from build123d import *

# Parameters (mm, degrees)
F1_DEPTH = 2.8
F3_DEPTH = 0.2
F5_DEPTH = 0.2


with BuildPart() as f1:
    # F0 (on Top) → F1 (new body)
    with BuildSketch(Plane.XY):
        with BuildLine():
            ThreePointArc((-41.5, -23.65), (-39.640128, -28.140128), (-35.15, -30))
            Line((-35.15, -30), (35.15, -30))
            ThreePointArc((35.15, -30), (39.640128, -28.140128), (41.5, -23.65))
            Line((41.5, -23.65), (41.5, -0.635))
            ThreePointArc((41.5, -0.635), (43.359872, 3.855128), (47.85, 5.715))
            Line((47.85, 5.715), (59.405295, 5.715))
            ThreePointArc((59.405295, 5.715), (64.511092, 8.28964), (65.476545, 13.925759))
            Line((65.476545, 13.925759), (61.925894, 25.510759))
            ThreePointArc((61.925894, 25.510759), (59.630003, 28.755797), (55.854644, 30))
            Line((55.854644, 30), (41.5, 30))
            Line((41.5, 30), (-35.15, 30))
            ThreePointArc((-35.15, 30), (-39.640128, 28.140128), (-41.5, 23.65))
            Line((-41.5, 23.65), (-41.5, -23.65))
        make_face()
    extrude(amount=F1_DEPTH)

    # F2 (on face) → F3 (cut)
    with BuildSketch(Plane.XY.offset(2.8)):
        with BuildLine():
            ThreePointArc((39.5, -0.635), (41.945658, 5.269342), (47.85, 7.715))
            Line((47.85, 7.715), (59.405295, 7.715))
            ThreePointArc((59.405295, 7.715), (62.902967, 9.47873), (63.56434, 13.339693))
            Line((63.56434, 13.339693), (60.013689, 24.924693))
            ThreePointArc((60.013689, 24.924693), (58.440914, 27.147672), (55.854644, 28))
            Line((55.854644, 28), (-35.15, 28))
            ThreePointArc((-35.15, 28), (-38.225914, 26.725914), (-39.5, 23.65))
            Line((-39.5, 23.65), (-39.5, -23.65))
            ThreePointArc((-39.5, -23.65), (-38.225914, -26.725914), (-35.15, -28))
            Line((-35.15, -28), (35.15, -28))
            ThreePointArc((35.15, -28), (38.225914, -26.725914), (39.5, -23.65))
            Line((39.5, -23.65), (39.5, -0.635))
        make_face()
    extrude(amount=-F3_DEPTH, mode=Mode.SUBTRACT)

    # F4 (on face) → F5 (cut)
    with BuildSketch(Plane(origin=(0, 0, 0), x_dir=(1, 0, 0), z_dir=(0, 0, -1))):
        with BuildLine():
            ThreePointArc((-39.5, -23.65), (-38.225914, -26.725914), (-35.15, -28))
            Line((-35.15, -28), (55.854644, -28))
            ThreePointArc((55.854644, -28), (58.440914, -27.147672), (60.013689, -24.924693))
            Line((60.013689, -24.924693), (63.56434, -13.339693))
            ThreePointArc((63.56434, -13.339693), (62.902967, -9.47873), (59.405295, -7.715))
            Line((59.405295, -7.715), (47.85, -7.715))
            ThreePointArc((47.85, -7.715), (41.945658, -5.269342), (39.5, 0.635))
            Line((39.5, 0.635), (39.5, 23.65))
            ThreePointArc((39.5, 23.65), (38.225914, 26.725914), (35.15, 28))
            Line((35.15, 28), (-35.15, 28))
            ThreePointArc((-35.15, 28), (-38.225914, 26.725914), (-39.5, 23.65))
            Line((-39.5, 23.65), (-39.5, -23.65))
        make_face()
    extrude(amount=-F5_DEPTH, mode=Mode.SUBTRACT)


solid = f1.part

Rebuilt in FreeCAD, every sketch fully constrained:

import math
import FreeCAD as App
import Part
import Sketcher
from FreeCAD import Vector

doc = App.newDocument("Part")
params = doc.addObject("Spreadsheet::Sheet", "Params")
for row, (alias, value) in enumerate([
    ("sketch1_radius", "6.35 mm"),
    ("sketch1_width", "70.3 mm"),
    ("sketch1_height", "47.3 mm"),
    ("pad1_length", "2.8 mm"),
    ("sketch2_radius", "8.349999 mm"),
    ("sketch2_radius2", "4.349999 mm"),
    ("sketch2_width", "70.3 mm"),
    ("sketch2_height", "47.3 mm"),
    ("pocket1_length", "0.2 mm"),
    ("sketch3_radius", "4.350002 mm"),
    ("sketch3_radius2", "8.349999 mm"),
    ("sketch3_width", "70.3 mm"),
    ("sketch3_height", "47.3 mm"),
    ("pocket2_length", "0.2 mm"),
], start=1):
    params.set(f"A{row}", alias)
    params.set(f"B{row}", "=" + value)
    params.setAlias(f"B{row}", alias)

body = doc.addObject("PartDesign::Body", "Body")

# Sketch on XY plane
sketch1 = body.newObject("Sketcher::SketchObject", "Sketch")
sketch1.AttachmentSupport = (doc.getObject("XY_Plane"), [""])
sketch1.MapMode = "FlatFace"
sketch1.addGeometry(Part.ArcOfCircle(Part.Circle(Vector(-35.15, -23.65, 0), Vector(0, 0, 1), 6.35), math.radians(-179.999998), math.radians(-90.000002)), False)
sketch1.addGeometry(Part.LineSegment(Vector(-35.15, -30, 0), Vector(35.15, -30, 0)), False)
sketch1.addGeometry(Part.ArcOfCircle(Part.Circle(Vector(35.15, -23.65, 0), Vector(0, 0, 1), 6.35), math.radians(-89.999998), math.radians(-0.000002)), False)
sketch1.addGeometry(Part.LineSegment(Vector(41.5, -23.65, 0), Vector(41.5, -0.635, 0)), False)
sketch1.addGeometry(Part.ArcOfCircle(Part.Circle(Vector(47.85, -0.635, 0), Vector(0, 0, 1), 6.35), math.radians(90.000002), math.radians(179.999998)), False)
sketch1.addGeometry(Part.LineSegment(Vector(47.85, 5.715, 0), Vector(59.405295, 5.715, 0)), False)
sketch1.addGeometry(Part.ArcOfCircle(Part.Circle(Vector(59.405296, 12.064999, 0), Vector(0, 0, 1), 6.349999), math.radians(-90.000008), math.radians(17.039628)), False)
sketch1.addGeometry(Part.LineSegment(Vector(65.476545, 13.925759, 0), Vector(61.925894, 25.510759, 0)), False)
sketch1.addGeometry(Part.ArcOfCircle(Part.Circle(Vector(55.854644, 23.649999, 0), Vector(0, 0, 1), 6.350001), math.radians(17.039624), math.radians(89.999997)), False)
sketch1.addGeometry(Part.LineSegment(Vector(55.854644, 30, 0), Vector(-35.15, 30, 0)), False)
sketch1.addGeometry(Part.ArcOfCircle(Part.Circle(Vector(-35.15, 23.65, 0), Vector(0, 0, 1), 6.35), math.radians(90.000002), math.radians(179.999998)), False)
sketch1.addGeometry(Part.LineSegment(Vector(-41.5, 23.65, 0), Vector(-41.5, -23.65, 0)), False)
sketch1.addConstraint(Sketcher.Constraint("Tangent", 0, 2, 1, 1))
sketch1.addConstraint(Sketcher.Constraint("Tangent", 1, 2, 2, 1))
sketch1.addConstraint(Sketcher.Constraint("Tangent", 2, 2, 3, 1))
sketch1.addConstraint(Sketcher.Constraint("Tangent", 3, 2, 4, 2))
sketch1.addConstraint(Sketcher.Constraint("Tangent", 4, 1, 5, 1))
sketch1.addConstraint(Sketcher.Constraint("Tangent", 5, 2, 6, 1))
sketch1.addConstraint(Sketcher.Constraint("Tangent", 6, 2, 7, 1))
sketch1.addConstraint(Sketcher.Constraint("Tangent", 7, 2, 8, 1))
sketch1.addConstraint(Sketcher.Constraint("Tangent", 8, 2, 9, 1))
sketch1.addConstraint(Sketcher.Constraint("Tangent", 9, 2, 10, 1))
sketch1.addConstraint(Sketcher.Constraint("Tangent", 10, 2, 11, 1))
sketch1.addConstraint(Sketcher.Constraint("Tangent", 11, 2, 0, 1))
sketch1.addConstraint(Sketcher.Constraint("Horizontal", 1))
sketch1.addConstraint(Sketcher.Constraint("Vertical", 3))
sketch1.addConstraint(Sketcher.Constraint("Horizontal", 5))
sketch1.addConstraint(Sketcher.Constraint("Horizontal", 9))
sketch1.addConstraint(Sketcher.Constraint("Vertical", 11))
sketch1.addConstraint(Sketcher.Constraint("Equal", 0, 2))
sketch1.addConstraint(Sketcher.Constraint("Equal", 2, 4))
sketch1.addConstraint(Sketcher.Constraint("Equal", 4, 6))
sketch1.addConstraint(Sketcher.Constraint("Equal", 6, 8))
sketch1.addConstraint(Sketcher.Constraint("Equal", 8, 10))
sketch1.addConstraint(Sketcher.Constraint("Symmetric", 2, 3, 10, 3, -1, 1))
sketch1.addConstraint(Sketcher.Constraint("Radius", 0, 6.35))
sketch1.addConstraint(Sketcher.Constraint("DistanceX", 1, 1, 1, 2, 70.3))
sketch1.addConstraint(Sketcher.Constraint("DistanceY", 11, 2, 11, 1, 47.3))
sketch1.addConstraint(Sketcher.Constraint("DistanceY", 3, 1, 3, 2, 23.015))
sketch1.addConstraint(Sketcher.Constraint("DistanceX", 8, 3, 6, 2, 9.621901))
sketch1.addConstraint(Sketcher.Constraint("DistanceX", 5, 1, 5, 2, 11.555295))
sketch1.setExpression("Constraints[23]", "Params.sketch1_radius")
sketch1.setExpression("Constraints[24]", "Params.sketch1_width")
sketch1.setExpression("Constraints[25]", "Params.sketch1_height")
pad1 = body.newObject("PartDesign::Pad", "Pad")
pad1.Profile = sketch1
pad1.setExpression("Length", "Params.pad1_length")

# Sketch on XY plane
sketch2 = body.newObject("Sketcher::SketchObject", "Sketch001")
sketch2.AttachmentSupport = (doc.getObject("XY_Plane"), [""])
sketch2.MapMode = "FlatFace"
sketch2.AttachmentOffset = App.Placement(Vector(0, 0, 2.8), App.Rotation())
sketch2.addGeometry(Part.ArcOfCircle(Part.Circle(Vector(47.849999, -0.634999, 0), Vector(0, 0, 1), 8.349999), math.radians(89.999991), math.radians(180.000009)), False)
sketch2.addGeometry(Part.LineSegment(Vector(47.85, 7.715, 0), Vector(59.405295, 7.715, 0)), False)
sketch2.addGeometry(Part.ArcOfCircle(Part.Circle(Vector(59.405296, 12.064999, 0), Vector(0, 0, 1), 4.349999), math.radians(-90.000008), math.radians(17.039629)), False)
sketch2.addGeometry(Part.LineSegment(Vector(63.56434, 13.339693, 0), Vector(60.013689, 24.924693, 0)), False)
sketch2.addGeometry(Part.ArcOfCircle(Part.Circle(Vector(55.854645, 23.650002, 0), Vector(0, 0, 1), 4.349998), math.radians(17.039601), math.radians(90.000012)), False)
sketch2.addGeometry(Part.LineSegment(Vector(55.854644, 28, 0), Vector(-35.15, 28, 0)), False)
sketch2.addGeometry(Part.ArcOfCircle(Part.Circle(Vector(-35.149998, 23.649998, 0), Vector(0, 0, 1), 4.350002), math.radians(90.000022), math.radians(179.999978)), False)
sketch2.addGeometry(Part.LineSegment(Vector(-39.5, 23.65, 0), Vector(-39.5, -23.65, 0)), False)
sketch2.addGeometry(Part.ArcOfCircle(Part.Circle(Vector(-35.149998, -23.649998, 0), Vector(0, 0, 1), 4.350002), math.radians(-179.999978), math.radians(-90.000022)), False)
sketch2.addGeometry(Part.LineSegment(Vector(-35.15, -28, 0), Vector(35.15, -28, 0)), False)
sketch2.addGeometry(Part.ArcOfCircle(Part.Circle(Vector(35.149998, -23.649998, 0), Vector(0, 0, 1), 4.350002), math.radians(-89.999978), math.radians(-0.000022)), False)
sketch2.addGeometry(Part.LineSegment(Vector(39.5, -23.65, 0), Vector(39.5, -0.635, 0)), False)
sketch2.addConstraint(Sketcher.Constraint("Tangent", 0, 1, 1, 1))
sketch2.addConstraint(Sketcher.Constraint("Tangent", 1, 2, 2, 1))
sketch2.addConstraint(Sketcher.Constraint("Tangent", 2, 2, 3, 1))
sketch2.addConstraint(Sketcher.Constraint("Tangent", 3, 2, 4, 1))
sketch2.addConstraint(Sketcher.Constraint("Tangent", 4, 2, 5, 1))
sketch2.addConstraint(Sketcher.Constraint("Tangent", 5, 2, 6, 1))
sketch2.addConstraint(Sketcher.Constraint("Tangent", 6, 2, 7, 1))
sketch2.addConstraint(Sketcher.Constraint("Tangent", 7, 2, 8, 1))
sketch2.addConstraint(Sketcher.Constraint("Tangent", 8, 2, 9, 1))
sketch2.addConstraint(Sketcher.Constraint("Tangent", 9, 2, 10, 1))
sketch2.addConstraint(Sketcher.Constraint("Tangent", 10, 2, 11, 1))
sketch2.addConstraint(Sketcher.Constraint("Tangent", 11, 2, 0, 2))
sketch2.addConstraint(Sketcher.Constraint("Horizontal", 1))
sketch2.addConstraint(Sketcher.Constraint("Horizontal", 5))
sketch2.addConstraint(Sketcher.Constraint("Vertical", 7))
sketch2.addConstraint(Sketcher.Constraint("Horizontal", 9))
sketch2.addConstraint(Sketcher.Constraint("Vertical", 11))
sketch2.addConstraint(Sketcher.Constraint("Equal", 2, 4))
sketch2.addConstraint(Sketcher.Constraint("Equal", 6, 8))
sketch2.addConstraint(Sketcher.Constraint("Equal", 8, 10))
sketch2.addConstraint(Sketcher.Constraint("Symmetric", 6, 3, 10, 3, -1, 1))
sketch2.addConstraint(Sketcher.Constraint("Horizontal", 4, 3, 6, 2))
sketch2.addConstraint(Sketcher.Constraint("Radius", 0, 8.349999))
sketch2.addConstraint(Sketcher.Constraint("Radius", 2, 4.349999))
sketch2.addConstraint(Sketcher.Constraint("DistanceX", 9, 1, 9, 2, 70.3))
sketch2.addConstraint(Sketcher.Constraint("DistanceY", 7, 2, 7, 1, 47.3))
sketch2.addConstraint(Sketcher.Constraint("DistanceY", 11, 1, 11, 2, 23.015))
sketch2.addConstraint(Sketcher.Constraint("DistanceX", 1, 1, 1, 2, 11.555295))
sketch2.addConstraint(Sketcher.Constraint("DistanceX", 5, 2, 5, 1, 91.004644))
sketch2.setExpression("Constraints[22]", "Params.sketch2_radius")
sketch2.setExpression("Constraints[23]", "Params.sketch2_radius2")
sketch2.setExpression("Constraints[24]", "Params.sketch2_width")
sketch2.setExpression("Constraints[25]", "Params.sketch2_height")
pocket1 = body.newObject("PartDesign::Pocket", "Pocket")
pocket1.Profile = sketch2
pocket1.setExpression("Length", "Params.pocket1_length")

# Sketch on XY plane
sketch3 = body.newObject("Sketcher::SketchObject", "Sketch002")
sketch3.AttachmentSupport = (doc.getObject("XY_Plane"), [""])
sketch3.MapMode = "FlatFace"
sketch3.addGeometry(Part.ArcOfCircle(Part.Circle(Vector(-35.149998, 23.649998, 0), Vector(0, 0, 1), 4.350002), math.radians(90.000022), math.radians(179.999978)), False)
sketch3.addGeometry(Part.LineSegment(Vector(-35.15, 28, 0), Vector(55.854644, 28, 0)), False)
sketch3.addGeometry(Part.ArcOfCircle(Part.Circle(Vector(55.854645, 23.650002, 0), Vector(0, 0, 1), 4.349998), math.radians(17.039601), math.radians(90.000012)), False)
sketch3.addGeometry(Part.LineSegment(Vector(60.013689, 24.924693, 0), Vector(63.56434, 13.339693, 0)), False)
sketch3.addGeometry(Part.ArcOfCircle(Part.Circle(Vector(59.405296, 12.064999, 0), Vector(0, 0, 1), 4.349999), math.radians(-90.000008), math.radians(17.039629)), False)
sketch3.addGeometry(Part.LineSegment(Vector(59.405295, 7.715, 0), Vector(47.85, 7.715, 0)), False)
sketch3.addGeometry(Part.ArcOfCircle(Part.Circle(Vector(47.849999, -0.634999, 0), Vector(0, 0, 1), 8.349999), math.radians(89.999991), math.radians(180.000009)), False)
sketch3.addGeometry(Part.LineSegment(Vector(39.5, -0.635, 0), Vector(39.5, -23.65, 0)), False)
sketch3.addGeometry(Part.ArcOfCircle(Part.Circle(Vector(35.149998, -23.649998, 0), Vector(0, 0, 1), 4.350002), math.radians(-89.999978), math.radians(-0.000022)), False)
sketch3.addGeometry(Part.LineSegment(Vector(35.15, -28, 0), Vector(-35.15, -28, 0)), False)
sketch3.addGeometry(Part.ArcOfCircle(Part.Circle(Vector(-35.149998, -23.649998, 0), Vector(0, 0, 1), 4.350002), math.radians(-179.999978), math.radians(-90.000022)), False)
sketch3.addGeometry(Part.LineSegment(Vector(-39.5, -23.65, 0), Vector(-39.5, 23.65, 0)), False)
sketch3.addConstraint(Sketcher.Constraint("Tangent", 0, 1, 1, 1))
sketch3.addConstraint(Sketcher.Constraint("Tangent", 1, 2, 2, 2))
sketch3.addConstraint(Sketcher.Constraint("Tangent", 2, 1, 3, 1))
sketch3.addConstraint(Sketcher.Constraint("Tangent", 3, 2, 4, 2))
sketch3.addConstraint(Sketcher.Constraint("Tangent", 4, 1, 5, 1))
sketch3.addConstraint(Sketcher.Constraint("Tangent", 5, 2, 6, 1))
sketch3.addConstraint(Sketcher.Constraint("Tangent", 6, 2, 7, 1))
sketch3.addConstraint(Sketcher.Constraint("Tangent", 7, 2, 8, 2))
sketch3.addConstraint(Sketcher.Constraint("Tangent", 8, 1, 9, 1))
sketch3.addConstraint(Sketcher.Constraint("Tangent", 9, 2, 10, 2))
sketch3.addConstraint(Sketcher.Constraint("Tangent", 10, 1, 11, 1))
sketch3.addConstraint(Sketcher.Constraint("Tangent", 11, 2, 0, 2))
sketch3.addConstraint(Sketcher.Constraint("Horizontal", 1))
sketch3.addConstraint(Sketcher.Constraint("Horizontal", 5))
sketch3.addConstraint(Sketcher.Constraint("Vertical", 7))
sketch3.addConstraint(Sketcher.Constraint("Horizontal", 9))
sketch3.addConstraint(Sketcher.Constraint("Vertical", 11))
sketch3.addConstraint(Sketcher.Constraint("Equal", 2, 4))
sketch3.addConstraint(Sketcher.Constraint("Equal", 0, 8))
sketch3.addConstraint(Sketcher.Constraint("Equal", 8, 10))
sketch3.addConstraint(Sketcher.Constraint("Symmetric", 0, 3, 8, 3, -1, 1))
sketch3.addConstraint(Sketcher.Constraint("Horizontal", 2, 3, 11, 2))
sketch3.addConstraint(Sketcher.Constraint("Radius", 0, 4.350002))
sketch3.addConstraint(Sketcher.Constraint("Radius", 6, 8.349999))
sketch3.addConstraint(Sketcher.Constraint("DistanceX", 9, 2, 9, 1, 70.3))
sketch3.addConstraint(Sketcher.Constraint("DistanceY", 11, 1, 11, 2, 47.3))
sketch3.addConstraint(Sketcher.Constraint("DistanceY", 7, 2, 7, 1, 23.015))
sketch3.addConstraint(Sketcher.Constraint("DistanceX", 1, 1, 1, 2, 91.004644))
sketch3.addConstraint(Sketcher.Constraint("DistanceX", 5, 2, 5, 1, 11.555295))
sketch3.setExpression("Constraints[22]", "Params.sketch3_radius")
sketch3.setExpression("Constraints[23]", "Params.sketch3_radius2")
sketch3.setExpression("Constraints[24]", "Params.sketch3_width")
sketch3.setExpression("Constraints[25]", "Params.sketch3_height")
pocket2 = body.newObject("PartDesign::Pocket", "Pocket001")
pocket2.Profile = sketch3
pocket2.setExpression("Length", "Params.pocket2_length")
pocket2.Reversed = True

doc.recompute()
